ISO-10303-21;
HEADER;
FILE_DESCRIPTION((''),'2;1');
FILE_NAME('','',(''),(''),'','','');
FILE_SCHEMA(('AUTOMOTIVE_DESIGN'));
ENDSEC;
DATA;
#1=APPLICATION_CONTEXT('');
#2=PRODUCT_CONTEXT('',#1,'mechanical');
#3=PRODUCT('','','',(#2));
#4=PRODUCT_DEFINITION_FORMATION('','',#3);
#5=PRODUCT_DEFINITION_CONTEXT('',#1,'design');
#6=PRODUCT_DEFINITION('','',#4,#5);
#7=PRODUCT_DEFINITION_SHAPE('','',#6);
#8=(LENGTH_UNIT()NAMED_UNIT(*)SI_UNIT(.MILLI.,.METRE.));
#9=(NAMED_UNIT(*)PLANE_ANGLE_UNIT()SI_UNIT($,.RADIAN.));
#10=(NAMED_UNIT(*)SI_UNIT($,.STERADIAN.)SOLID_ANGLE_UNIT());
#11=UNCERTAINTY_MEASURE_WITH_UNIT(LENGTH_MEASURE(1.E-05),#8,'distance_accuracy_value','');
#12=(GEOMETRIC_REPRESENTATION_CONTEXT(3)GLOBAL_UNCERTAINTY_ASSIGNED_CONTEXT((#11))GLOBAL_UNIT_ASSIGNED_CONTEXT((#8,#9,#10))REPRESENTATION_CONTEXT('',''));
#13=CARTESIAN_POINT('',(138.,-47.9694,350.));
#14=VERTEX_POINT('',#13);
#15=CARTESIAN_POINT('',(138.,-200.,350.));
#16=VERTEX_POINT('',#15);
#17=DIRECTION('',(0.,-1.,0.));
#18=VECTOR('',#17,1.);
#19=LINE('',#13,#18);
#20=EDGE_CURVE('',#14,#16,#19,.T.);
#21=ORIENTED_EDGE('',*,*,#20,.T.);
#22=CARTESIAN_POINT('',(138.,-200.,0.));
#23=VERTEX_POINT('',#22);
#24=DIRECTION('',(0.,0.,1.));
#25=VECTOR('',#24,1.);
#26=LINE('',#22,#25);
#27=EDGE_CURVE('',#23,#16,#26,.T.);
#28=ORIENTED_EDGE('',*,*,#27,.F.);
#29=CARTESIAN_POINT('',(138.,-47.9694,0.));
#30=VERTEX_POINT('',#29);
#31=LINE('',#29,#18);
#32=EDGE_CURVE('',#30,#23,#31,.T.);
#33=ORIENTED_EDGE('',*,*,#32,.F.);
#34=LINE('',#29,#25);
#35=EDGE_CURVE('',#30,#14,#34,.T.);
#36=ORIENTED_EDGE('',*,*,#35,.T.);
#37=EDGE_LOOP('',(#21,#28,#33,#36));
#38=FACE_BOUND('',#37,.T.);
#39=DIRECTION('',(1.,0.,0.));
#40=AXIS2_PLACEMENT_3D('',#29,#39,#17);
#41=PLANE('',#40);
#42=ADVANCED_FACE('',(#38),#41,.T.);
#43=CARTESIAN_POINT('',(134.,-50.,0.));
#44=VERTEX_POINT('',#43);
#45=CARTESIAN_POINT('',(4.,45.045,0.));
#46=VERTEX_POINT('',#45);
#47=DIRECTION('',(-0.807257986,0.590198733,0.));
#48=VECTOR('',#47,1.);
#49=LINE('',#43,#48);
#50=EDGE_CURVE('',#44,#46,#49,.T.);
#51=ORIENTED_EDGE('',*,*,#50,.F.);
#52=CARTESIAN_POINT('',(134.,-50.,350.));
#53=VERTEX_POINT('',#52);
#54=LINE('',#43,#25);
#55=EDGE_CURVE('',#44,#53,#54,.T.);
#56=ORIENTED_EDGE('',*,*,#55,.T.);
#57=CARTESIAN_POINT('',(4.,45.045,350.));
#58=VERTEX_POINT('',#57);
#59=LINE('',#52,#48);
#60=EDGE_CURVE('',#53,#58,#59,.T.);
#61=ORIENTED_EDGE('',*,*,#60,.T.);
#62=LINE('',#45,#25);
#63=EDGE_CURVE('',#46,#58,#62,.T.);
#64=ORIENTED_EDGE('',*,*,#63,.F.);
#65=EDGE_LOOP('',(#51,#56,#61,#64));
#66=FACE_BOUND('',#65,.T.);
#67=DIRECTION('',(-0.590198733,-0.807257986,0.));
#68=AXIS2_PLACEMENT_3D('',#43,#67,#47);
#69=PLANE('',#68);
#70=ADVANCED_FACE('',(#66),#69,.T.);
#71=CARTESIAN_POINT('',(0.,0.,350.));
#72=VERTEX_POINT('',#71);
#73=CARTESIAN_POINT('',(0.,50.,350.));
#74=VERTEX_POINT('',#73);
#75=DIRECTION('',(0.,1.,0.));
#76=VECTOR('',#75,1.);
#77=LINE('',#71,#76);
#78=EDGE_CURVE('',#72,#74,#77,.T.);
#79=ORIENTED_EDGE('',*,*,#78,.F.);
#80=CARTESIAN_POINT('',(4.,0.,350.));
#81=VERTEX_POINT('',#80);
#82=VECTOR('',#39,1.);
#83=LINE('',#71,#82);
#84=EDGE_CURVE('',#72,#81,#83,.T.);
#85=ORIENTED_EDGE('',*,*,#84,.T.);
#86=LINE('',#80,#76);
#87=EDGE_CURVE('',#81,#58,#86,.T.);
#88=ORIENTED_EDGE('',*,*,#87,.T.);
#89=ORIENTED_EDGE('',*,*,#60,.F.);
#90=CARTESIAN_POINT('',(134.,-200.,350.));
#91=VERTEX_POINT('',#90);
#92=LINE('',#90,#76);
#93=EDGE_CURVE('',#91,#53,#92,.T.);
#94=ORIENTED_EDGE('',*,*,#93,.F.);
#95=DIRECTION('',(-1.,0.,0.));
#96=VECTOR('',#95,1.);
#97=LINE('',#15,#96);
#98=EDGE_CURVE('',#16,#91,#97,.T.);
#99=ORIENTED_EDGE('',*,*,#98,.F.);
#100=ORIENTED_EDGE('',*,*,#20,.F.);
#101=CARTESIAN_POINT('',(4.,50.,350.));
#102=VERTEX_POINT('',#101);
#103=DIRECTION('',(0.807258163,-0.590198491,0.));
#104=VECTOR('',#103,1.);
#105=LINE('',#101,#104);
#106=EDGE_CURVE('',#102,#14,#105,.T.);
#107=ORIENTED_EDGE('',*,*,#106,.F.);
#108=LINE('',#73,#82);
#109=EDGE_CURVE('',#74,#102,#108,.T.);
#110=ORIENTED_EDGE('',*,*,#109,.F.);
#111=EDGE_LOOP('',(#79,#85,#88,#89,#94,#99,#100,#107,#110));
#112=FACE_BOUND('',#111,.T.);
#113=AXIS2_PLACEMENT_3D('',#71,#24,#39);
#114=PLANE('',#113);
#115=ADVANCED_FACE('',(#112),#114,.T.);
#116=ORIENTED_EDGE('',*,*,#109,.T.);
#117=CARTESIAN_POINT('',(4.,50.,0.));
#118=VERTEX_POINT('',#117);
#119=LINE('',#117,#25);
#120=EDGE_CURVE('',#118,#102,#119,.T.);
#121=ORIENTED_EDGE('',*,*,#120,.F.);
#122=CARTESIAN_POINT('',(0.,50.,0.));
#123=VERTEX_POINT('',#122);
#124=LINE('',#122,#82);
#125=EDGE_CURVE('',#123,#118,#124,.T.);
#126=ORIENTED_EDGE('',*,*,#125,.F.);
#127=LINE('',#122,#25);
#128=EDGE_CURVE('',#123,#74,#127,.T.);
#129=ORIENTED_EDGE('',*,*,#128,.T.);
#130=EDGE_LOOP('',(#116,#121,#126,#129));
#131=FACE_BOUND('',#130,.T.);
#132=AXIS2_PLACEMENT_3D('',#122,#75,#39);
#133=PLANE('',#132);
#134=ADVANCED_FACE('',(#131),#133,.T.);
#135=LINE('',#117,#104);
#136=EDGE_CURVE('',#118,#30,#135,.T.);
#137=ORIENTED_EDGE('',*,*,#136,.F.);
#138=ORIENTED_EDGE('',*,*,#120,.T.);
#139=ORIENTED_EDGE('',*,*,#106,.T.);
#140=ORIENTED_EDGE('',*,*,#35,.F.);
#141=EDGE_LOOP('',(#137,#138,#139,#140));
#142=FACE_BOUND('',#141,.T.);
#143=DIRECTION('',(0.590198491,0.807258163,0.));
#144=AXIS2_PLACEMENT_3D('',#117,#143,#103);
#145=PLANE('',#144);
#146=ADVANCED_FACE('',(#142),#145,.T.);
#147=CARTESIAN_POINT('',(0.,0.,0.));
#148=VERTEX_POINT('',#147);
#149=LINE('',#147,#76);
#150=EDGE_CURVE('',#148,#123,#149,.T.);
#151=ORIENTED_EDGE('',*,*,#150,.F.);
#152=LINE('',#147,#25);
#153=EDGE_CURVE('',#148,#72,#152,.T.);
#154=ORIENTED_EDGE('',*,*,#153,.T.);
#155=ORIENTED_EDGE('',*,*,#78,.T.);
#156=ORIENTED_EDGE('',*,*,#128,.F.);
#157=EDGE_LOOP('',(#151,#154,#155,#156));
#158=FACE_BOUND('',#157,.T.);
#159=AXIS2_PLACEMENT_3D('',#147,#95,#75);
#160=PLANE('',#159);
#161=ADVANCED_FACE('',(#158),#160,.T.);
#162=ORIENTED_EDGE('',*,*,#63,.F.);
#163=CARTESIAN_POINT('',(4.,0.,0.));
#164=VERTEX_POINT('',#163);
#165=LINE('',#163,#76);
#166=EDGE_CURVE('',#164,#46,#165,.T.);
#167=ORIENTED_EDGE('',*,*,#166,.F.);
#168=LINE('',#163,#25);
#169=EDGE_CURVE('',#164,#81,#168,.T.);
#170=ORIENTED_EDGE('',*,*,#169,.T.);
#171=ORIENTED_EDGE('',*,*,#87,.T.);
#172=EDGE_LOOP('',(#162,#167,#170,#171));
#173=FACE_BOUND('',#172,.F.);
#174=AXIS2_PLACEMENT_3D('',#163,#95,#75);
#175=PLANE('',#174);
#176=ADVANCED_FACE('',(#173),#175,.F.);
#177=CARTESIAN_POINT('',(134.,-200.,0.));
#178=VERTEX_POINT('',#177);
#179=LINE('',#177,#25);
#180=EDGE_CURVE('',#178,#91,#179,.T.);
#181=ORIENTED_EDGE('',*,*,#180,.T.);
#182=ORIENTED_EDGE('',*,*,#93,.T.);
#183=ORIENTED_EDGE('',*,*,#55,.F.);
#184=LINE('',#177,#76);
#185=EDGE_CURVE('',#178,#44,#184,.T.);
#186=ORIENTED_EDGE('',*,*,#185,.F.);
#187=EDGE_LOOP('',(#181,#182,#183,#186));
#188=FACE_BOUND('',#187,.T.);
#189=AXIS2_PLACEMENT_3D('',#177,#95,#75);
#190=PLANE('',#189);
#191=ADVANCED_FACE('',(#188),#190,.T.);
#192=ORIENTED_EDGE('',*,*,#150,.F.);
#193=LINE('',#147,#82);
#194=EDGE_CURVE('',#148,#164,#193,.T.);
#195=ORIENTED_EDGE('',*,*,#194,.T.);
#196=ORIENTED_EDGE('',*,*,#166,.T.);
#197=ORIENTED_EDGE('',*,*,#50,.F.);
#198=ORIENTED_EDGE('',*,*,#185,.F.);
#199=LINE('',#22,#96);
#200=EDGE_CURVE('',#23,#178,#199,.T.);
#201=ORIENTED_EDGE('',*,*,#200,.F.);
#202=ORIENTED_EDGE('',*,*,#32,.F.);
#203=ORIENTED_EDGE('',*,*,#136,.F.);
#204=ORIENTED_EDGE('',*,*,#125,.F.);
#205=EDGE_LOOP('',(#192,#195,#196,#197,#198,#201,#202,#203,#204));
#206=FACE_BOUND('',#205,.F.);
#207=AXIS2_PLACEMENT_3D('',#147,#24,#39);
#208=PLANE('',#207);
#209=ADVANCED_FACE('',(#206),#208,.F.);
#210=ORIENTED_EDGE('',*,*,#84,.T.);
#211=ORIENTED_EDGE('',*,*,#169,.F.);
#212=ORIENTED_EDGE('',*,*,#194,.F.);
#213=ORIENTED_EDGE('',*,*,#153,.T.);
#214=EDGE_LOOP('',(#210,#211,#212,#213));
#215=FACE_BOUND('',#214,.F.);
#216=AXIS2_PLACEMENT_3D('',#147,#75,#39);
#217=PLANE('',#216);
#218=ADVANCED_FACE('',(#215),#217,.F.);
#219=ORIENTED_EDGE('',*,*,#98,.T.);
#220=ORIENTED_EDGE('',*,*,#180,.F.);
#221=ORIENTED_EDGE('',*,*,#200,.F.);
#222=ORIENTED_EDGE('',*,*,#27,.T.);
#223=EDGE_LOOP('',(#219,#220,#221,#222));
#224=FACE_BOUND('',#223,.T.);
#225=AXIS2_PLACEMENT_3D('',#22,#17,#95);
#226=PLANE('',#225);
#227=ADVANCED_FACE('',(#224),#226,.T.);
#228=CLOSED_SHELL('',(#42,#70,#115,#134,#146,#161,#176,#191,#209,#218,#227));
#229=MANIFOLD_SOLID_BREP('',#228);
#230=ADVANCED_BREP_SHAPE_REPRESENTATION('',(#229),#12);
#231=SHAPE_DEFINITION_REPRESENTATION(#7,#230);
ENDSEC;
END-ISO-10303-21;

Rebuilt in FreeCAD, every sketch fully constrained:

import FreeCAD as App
import Part
import Sketcher
from FreeCAD import Vector
Q = App.Units.Quantity

doc = App.newDocument("Part")
body = doc.addObject("PartDesign::Body", "Body")

# Sketch on XY plane
sketch1 = doc.addObject("Sketcher::SketchObject", "Sketch")
body.addObject(sketch1)
sketch1.AttachmentSupport = (doc.XY_Plane, [""])
sketch1.MapMode = "FlatFace"
sketch1.addGeometry([
    Part.LineSegment(Vector(0, 50, 0), Vector(0, 0, 0)),  # 0
    Part.LineSegment(Vector(0, 0, 0), Vector(4, 0, 0)),  # 1
    Part.LineSegment(Vector(4, 0, 0), Vector(4, 45, 0)),  # 2
    Part.LineSegment(Vector(4, 45, 0), Vector(134, -50, 0)),  # 3
    Part.LineSegment(Vector(134, -50, 0), Vector(134, -200, 0)),  # 4
    Part.LineSegment(Vector(134, -200, 0), Vector(138, -200, 0)),  # 5
    Part.LineSegment(Vector(138, -200, 0), Vector(138, -48, 0)),  # 6
    Part.LineSegment(Vector(138, -48, 0), Vector(4, 50, 0)),  # 7
    Part.LineSegment(Vector(4, 50, 0), Vector(0, 50, 0)),  # 8
], False)
sketch1.addConstraint([
    Sketcher.Constraint("Coincident", 0, 2, 1, 1),
    Sketcher.Constraint("Coincident", 1, 2, 2, 1),
    Sketcher.Constraint("Coincident", 2, 2, 3, 1),
    Sketcher.Constraint("Coincident", 3, 2, 4, 1),
    Sketcher.Constraint("Coincident", 4, 2, 5, 1),
    Sketcher.Constraint("Coincident", 5, 2, 6, 1),
    Sketcher.Constraint("Coincident", 6, 2, 7, 1),
    Sketcher.Constraint("Coincident", 7, 2, 8, 1),
    Sketcher.Constraint("Coincident", 8, 2, 0, 1),
    Sketcher.Constraint("Vertical", 0),
    Sketcher.Constraint("Horizontal", 1),
    Sketcher.Constraint("Vertical", 2),
    Sketcher.Constraint("Vertical", 4),
    Sketcher.Constraint("Horizontal", 5),
    Sketcher.Constraint("Vertical", 6),
    Sketcher.Constraint("Horizontal", 8),
    Sketcher.Constraint("Coincident", 0, 2, -1, 1),
    Sketcher.Constraint("Parallel", 3, 7),
    Sketcher.Constraint("Vertical", 2, 2, 7, 2),
    Sketcher.Constraint("Equal", 1, 5),
    Sketcher.Constraint("DistanceX", 1, 1, 1, 2, 4.0),
    Sketcher.Constraint("DistanceY", 0, 2, 0, 1, 50.0),
    Sketcher.Constraint("DistanceY", 4, 2, 4, 1, 150.0),
    Sketcher.Constraint("DistanceX", -1, 1, 3, 2, 134.0),
    Sketcher.Constraint("DistanceY", 3, 2, -1, 1, 50.0),
    Sketcher.Constraint("Angle", 3, Q("-36.171 deg")),
])
pad1 = doc.addObject("PartDesign::Pad", "Pad")
body.addObject(pad1)
pad1.Profile = sketch1
pad1.Length = 350

doc.recompute()
